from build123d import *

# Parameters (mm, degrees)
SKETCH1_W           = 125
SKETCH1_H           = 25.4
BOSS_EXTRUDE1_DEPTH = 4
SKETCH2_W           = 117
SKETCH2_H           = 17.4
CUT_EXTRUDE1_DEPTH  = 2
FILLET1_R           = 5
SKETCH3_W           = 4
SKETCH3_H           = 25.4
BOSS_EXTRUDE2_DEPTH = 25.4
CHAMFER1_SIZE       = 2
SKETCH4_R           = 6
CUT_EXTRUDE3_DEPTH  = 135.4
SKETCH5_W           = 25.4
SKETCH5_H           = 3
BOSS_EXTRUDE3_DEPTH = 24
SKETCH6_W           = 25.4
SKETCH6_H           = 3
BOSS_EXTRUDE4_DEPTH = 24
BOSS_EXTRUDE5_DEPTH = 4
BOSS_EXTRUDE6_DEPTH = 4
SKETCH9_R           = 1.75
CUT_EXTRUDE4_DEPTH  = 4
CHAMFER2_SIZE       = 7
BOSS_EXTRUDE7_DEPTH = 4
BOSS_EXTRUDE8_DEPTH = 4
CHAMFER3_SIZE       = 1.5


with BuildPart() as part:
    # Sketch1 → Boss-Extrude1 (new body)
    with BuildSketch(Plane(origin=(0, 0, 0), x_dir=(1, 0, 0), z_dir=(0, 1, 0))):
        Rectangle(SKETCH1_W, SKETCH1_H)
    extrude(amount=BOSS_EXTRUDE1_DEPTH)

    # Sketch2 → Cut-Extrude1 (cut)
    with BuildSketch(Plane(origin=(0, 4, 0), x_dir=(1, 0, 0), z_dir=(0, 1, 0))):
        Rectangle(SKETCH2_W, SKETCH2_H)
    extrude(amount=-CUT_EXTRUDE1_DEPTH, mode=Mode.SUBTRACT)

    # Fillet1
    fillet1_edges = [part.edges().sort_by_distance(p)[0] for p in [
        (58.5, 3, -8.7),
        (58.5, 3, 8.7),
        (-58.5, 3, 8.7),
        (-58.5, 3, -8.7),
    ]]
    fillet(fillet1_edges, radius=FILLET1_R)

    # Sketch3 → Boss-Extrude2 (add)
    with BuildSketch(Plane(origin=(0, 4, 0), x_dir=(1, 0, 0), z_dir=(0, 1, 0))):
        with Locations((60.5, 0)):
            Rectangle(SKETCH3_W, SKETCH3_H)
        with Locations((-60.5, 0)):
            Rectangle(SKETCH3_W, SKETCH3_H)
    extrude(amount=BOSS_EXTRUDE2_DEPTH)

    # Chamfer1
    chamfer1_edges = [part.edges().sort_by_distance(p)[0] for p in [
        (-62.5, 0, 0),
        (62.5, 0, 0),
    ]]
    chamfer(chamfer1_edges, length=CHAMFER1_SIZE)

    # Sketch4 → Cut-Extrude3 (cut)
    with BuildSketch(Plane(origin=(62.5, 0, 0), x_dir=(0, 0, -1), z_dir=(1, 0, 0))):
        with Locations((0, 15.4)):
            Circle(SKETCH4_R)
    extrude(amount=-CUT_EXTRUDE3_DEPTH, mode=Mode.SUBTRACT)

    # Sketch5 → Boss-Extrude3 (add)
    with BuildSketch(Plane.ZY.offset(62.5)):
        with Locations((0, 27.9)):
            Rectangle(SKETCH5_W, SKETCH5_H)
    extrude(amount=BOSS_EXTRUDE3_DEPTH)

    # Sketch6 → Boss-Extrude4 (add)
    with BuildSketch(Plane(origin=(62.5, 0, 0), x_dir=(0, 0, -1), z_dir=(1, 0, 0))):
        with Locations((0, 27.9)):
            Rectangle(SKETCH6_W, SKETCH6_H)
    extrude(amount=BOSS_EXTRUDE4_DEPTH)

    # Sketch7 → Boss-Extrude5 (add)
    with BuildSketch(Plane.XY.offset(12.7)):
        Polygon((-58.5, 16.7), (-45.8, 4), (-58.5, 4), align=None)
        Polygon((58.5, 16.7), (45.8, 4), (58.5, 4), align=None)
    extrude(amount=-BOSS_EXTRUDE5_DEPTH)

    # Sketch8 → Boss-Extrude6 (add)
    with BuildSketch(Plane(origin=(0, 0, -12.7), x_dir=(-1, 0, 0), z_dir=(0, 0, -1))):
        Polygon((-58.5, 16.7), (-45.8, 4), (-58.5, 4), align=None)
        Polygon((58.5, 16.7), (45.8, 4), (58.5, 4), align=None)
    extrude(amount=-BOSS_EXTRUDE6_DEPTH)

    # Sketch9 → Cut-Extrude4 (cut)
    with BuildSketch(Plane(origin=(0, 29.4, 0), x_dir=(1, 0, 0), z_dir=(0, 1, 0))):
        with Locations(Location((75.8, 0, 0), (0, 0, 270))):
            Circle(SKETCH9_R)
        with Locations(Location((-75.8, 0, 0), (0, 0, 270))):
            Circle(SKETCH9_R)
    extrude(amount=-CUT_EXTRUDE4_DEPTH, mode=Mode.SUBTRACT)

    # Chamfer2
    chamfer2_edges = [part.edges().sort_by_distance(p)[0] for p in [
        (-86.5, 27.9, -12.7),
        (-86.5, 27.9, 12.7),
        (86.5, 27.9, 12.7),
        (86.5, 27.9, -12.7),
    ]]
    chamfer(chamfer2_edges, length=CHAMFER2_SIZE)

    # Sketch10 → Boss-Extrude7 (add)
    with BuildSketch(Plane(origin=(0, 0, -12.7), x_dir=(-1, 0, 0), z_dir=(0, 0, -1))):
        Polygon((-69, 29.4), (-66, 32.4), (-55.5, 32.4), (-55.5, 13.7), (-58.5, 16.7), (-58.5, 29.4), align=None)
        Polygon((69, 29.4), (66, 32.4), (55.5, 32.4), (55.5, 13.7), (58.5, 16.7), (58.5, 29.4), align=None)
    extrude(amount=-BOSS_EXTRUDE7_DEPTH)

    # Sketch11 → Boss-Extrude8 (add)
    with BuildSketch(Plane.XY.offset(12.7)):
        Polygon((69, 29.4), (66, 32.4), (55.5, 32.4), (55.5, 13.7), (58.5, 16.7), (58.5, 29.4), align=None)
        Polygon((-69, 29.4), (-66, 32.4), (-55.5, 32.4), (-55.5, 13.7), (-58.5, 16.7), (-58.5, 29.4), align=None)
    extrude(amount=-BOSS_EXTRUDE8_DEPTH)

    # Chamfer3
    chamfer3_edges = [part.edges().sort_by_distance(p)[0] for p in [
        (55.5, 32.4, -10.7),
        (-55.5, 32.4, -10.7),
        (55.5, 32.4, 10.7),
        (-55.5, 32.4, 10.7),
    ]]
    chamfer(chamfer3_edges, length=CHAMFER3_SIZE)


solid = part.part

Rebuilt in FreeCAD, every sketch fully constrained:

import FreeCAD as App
import Part
import Sketcher
from FreeCAD import Vector
Q = App.Units.Quantity


def edges_at(feature, points):
    """Names of the edges that pass closest to the given points."""
    edges = feature.Shape.Edges
    near = lambda p: min(range(len(edges)), key=lambda i: edges[i].distToShape(Part.Vertex(*p))[0])
    return sorted({f"Edge{near(p) + 1}" for p in points})


def add_polygon(sketch, points):
    """Adds a closed chain of lines whose ends are joined by coincident constraints."""
    first, n = sketch.GeometryCount, len(points)
    for a, b in zip(points, points[1:] + points[:1]):
        sketch.addGeometry(Part.LineSegment(App.Vector(*a, 0), App.Vector(*b, 0)), False)
    for i in range(n):
        sketch.addConstraint(Sketcher.Constraint("Coincident", first + i, 2, first + (i + 1) % n, 1))

doc = App.newDocument("Part")
body = doc.addObject("PartDesign::Body", "Body")

# Sketch on XZ plane
sketch1 = body.newObject("Sketcher::SketchObject", "Sketch")
sketch1.AttachmentSupport = (doc.getObject("XZ_Plane"), [""])
sketch1.MapMode = "FlatFace"
add_polygon(sketch1, [(-62, -13), (-62, 13), (62, 13), (62, -13)])  # lines 0-3
sketch1.addConstraint([
    Sketcher.Constraint("Vertical", 0),
    Sketcher.Constraint("Horizontal", 1),
    Sketcher.Constraint("Vertical", 2),
    Sketcher.Constraint("Horizontal", 3),
    Sketcher.Constraint("Symmetric", 0, 2, 2, 2, -1, 1),
    Sketcher.Constraint("DistanceX", 1, 1, 1, 2, Q("125 mm")),
    Sketcher.Constraint("DistanceY", 0, 1, 0, 2, Q("25.4 mm")),
])
pad1 = body.newObject("PartDesign::Pad", "Pad")
pad1.Profile = sketch1
pad1.Length = 4
pad1.Reversed = True

# Sketch on XZ plane
sketch2 = body.newObject("Sketcher::SketchObject", "Sketch001")
sketch2.AttachmentSupport = (doc.getObject("XZ_Plane"), [""])
sketch2.MapMode = "FlatFace"
sketch2.AttachmentOffset = App.Placement(Vector(0, 0, -4), App.Rotation())
add_polygon(sketch2, [(-58, -9), (-58, 9), (58, 9), (58, -9)])  # lines 0-3
sketch2.addConstraint([
    Sketcher.Constraint("Vertical", 0),
    Sketcher.Constraint("Horizontal", 1),
    Sketcher.Constraint("Vertical", 2),
    Sketcher.Constraint("Horizontal", 3),
    Sketcher.Constraint("Symmetric", 0, 2, 2, 2, -1, 1),
    Sketcher.Constraint("DistanceX", 1, 1, 1, 2, Q("117 mm")),
    Sketcher.Constraint("DistanceY", 0, 1, 0, 2, Q("17.4 mm")),
])
pocket1 = body.newObject("PartDesign::Pocket", "Pocket")
pocket1.Profile = sketch2
pocket1.Length = 2
pocket1.Reversed = True
doc.recompute()

fillet = body.newObject("PartDesign::Fillet", "Fillet")
fillet.Base = (pocket1, edges_at(pocket1, [
    (58.5, 3, -8.7),
    (58.5, 3, 8.7),
    (-58.5, 3, 8.7),
    (-58.5, 3, -8.7),
]))
fillet.Radius = 5

# Sketch on XZ plane
sketch3 = body.newObject("Sketcher::SketchObject", "Sketch002")
sketch3.AttachmentSupport = (doc.getObject("XZ_Plane"), [""])
sketch3.MapMode = "FlatFace"
sketch3.AttachmentOffset = App.Placement(Vector(0, 0, -4), App.Rotation())
add_polygon(sketch3, [(58.5, -12.7), (58.5, 12.7), (62.5, 12.7), (62.5, -12.7)])  # lines 0-3
add_polygon(sketch3, [(-62.5, -12.7), (-62.5, 12.7), (-58.5, 12.7), (-58.5, -12.7)])  # lines 4-7
sketch3.addConstraint([
    Sketcher.Constraint("Vertical", 0),
    Sketcher.Constraint("Horizontal", 1),
    Sketcher.Constraint("Vertical", 2),
    Sketcher.Constraint("Horizontal", 3),
    Sketcher.Constraint("Vertical", 4),
    Sketcher.Constraint("Horizontal", 5),
    Sketcher.Constraint("Vertical", 6),
    Sketcher.Constraint("Horizontal", 7),
    Sketcher.Constraint("Symmetric", 2, 2, 4, 2, -1, 1),
    Sketcher.Constraint("Symmetric", 0, 2, 6, 2, -1, 1),
    Sketcher.Constraint("Horizontal", 1, 2, 4, 2),
    Sketcher.Constraint("DistanceX", 1, 1, 1, 2, Q("4 mm")),
    Sketcher.Constraint("DistanceY", 0, 1, 0, 2, Q("25.4 mm")),
    Sketcher.Constraint("DistanceX", 4, 2, 0, 2, Q("121 mm")),
])
pad2 = body.newObject("PartDesign::Pad", "Pad001")
pad2.Profile = sketch3
pad2.Length = 25.4
pad2.Reversed = True
doc.recompute()

chamfer = body.newObject("PartDesign::Chamfer", "Chamfer")
chamfer.Base = (pad2, edges_at(pad2, [(-62.5, 0, 0), (62.5, 0, 0)]))
chamfer.Size = 2

# Sketch on YZ plane
sketch4 = body.newObject("Sketcher::SketchObject", "Sketch003")
sketch4.AttachmentSupport = (doc.getObject("YZ_Plane"), [""])
sketch4.MapMode = "FlatFace"
sketch4.AttachmentOffset = App.Placement(Vector(0, 0, 62.5), App.Rotation())
sketch4.addGeometry(Part.Circle(Vector(15, 0, 0), Vector(0, 0, 1), 6), False)
sketch4.addConstraint([
    Sketcher.Constraint("PointOnObject", 0, 3, -1),
    Sketcher.Constraint("Diameter", 0, Q("12 mm")),
    Sketcher.Constraint("DistanceX", -1, 1, 0, 3, Q("15.4 mm")),
])
pocket2 = body.newObject("PartDesign::Pocket", "Pocket001")
pocket2.Profile = sketch4
pocket2.Length = 135.4

# Sketch on YZ plane
sketch5 = body.newObject("Sketcher::SketchObject", "Sketch004")
sketch5.AttachmentSupport = (doc.getObject("YZ_Plane"), [""])
sketch5.MapMode = "FlatFace"
sketch5.AttachmentOffset = App.Placement(Vector(0, 0, -62.5), App.Rotation())
add_polygon(sketch5, [(29.4, -12.7), (26.4, -12.7), (26.4, 12.7), (29.4, 12.7)])  # lines 0-3
sketch5.addConstraint([
    Sketcher.Constraint("Horizontal", 0),
    Sketcher.Constraint("Vertical", 1),
    Sketcher.Constraint("Horizontal", 2),
    Sketcher.Constraint("Vertical", 3),
    Sketcher.Constraint("DistanceX", 0, 2, 0, 1, Q("3 mm")),
    Sketcher.Constraint("DistanceY", 1, 1, 1, 2, Q("25.4 mm")),
    Sketcher.Constraint("DistanceX", -1, 1, 0, 2, Q("26.4 mm")),
    Sketcher.Constraint("DistanceY", 0, 2, -1, 1, Q("12.7 mm")),
])
pad3 = body.newObject("PartDesign::Pad", "Pad002")
pad3.Profile = sketch5
pad3.Length = 24
pad3.Reversed = True

# Sketch on YZ plane
sketch6 = body.newObject("Sketcher::SketchObject", "Sketch005")
sketch6.AttachmentSupport = (doc.getObject("YZ_Plane"), [""])
sketch6.MapMode = "FlatFace"
sketch6.AttachmentOffset = App.Placement(Vector(0, 0, 62.5), App.Rotation())
add_polygon(sketch6, [(29.4, 12.7), (26.4, 12.7), (26.4, -12.7), (29.4, -12.7)])  # lines 0-3
sketch6.addConstraint([
    Sketcher.Constraint("Horizontal", 0),
    Sketcher.Constraint("Vertical", 1),
    Sketcher.Constraint("Horizontal", 2),
    Sketcher.Constraint("Vertical", 3),
    Sketcher.Constraint("DistanceX", 0, 2, 0, 1, Q("3 mm")),
    Sketcher.Constraint("DistanceY", 1, 2, 1, 1, Q("25.4 mm")),
    Sketcher.Constraint("DistanceX", -1, 1, 0, 2, Q("26.4 mm")),
    Sketcher.Constraint("DistanceY", -1, 1, 0, 2, Q("12.7 mm")),
])
pad4 = body.newObject("PartDesign::Pad", "Pad003")
pad4.Profile = sketch6
pad4.Length = 24

# Sketch on XY plane
sketch7 = body.newObject("Sketcher::SketchObject", "Sketch006")
sketch7.AttachmentSupport = (doc.getObject("XY_Plane"), [""])
sketch7.MapMode = "FlatFace"
sketch7.AttachmentOffset = App.Placement(Vector(0, 0, 12.7), App.Rotation())
add_polygon(sketch7, [(-46, 4), (-58, 17), (-58, 4)])  # lines 0-2
add_polygon(sketch7, [(58, 17), (46, 4), (58, 4)])  # lines 3-5
sketch7.addConstraint([
    Sketcher.Constraint("Vertical", 1),
    Sketcher.Constraint("Horizontal", 2),
    Sketcher.Constraint("Horizontal", 4),
    Sketcher.Constraint("Vertical", 5),
    Sketcher.Constraint("Symmetric", 2, 2, 3, 2, -2),
    Sketcher.Constraint("Symmetric", 0, 2, 5, 2, -2),
    Sketcher.Constraint("Perpendicular", 0, 3),
    Sketcher.Constraint("DistanceX", 2, 1, 2, 2, Q("12.7 mm")),
    Sketcher.Constraint("DistanceY", -1, 1, 1, 2, Q("4 mm")),
    Sketcher.Constraint("DistanceX", 1, 2, 4, 2, Q("117 mm")),
])
pad5 = body.newObject("PartDesign::Pad", "Pad004")
pad5.Profile = sketch7
pad5.Length = 4
pad5.Reversed = True

# Sketch on XY plane
sketch8 = body.newObject("Sketcher::SketchObject", "Sketch007")
sketch8.AttachmentSupport = (doc.getObject("XY_Plane"), [""])
sketch8.MapMode = "FlatFace"
sketch8.AttachmentOffset = App.Placement(Vector(0, 0, -12.7), App.Rotation())
add_polygon(sketch8, [(46, 4), (58, 17), (58, 4)])  # lines 0-2
add_polygon(sketch8, [(-58, 17), (-46, 4), (-58, 4)])  # lines 3-5
sketch8.addConstraint([
    Sketcher.Constraint("Vertical", 1),
    Sketcher.Constraint("Horizontal", 2),
    Sketcher.Constraint("Horizontal", 4),
    Sketcher.Constraint("Vertical", 5),
    Sketcher.Constraint("Symmetric", 2, 2, 3, 2, -2),
    Sketcher.Constraint("Symmetric", 0, 2, 5, 2, -2),
    Sketcher.Constraint("Perpendicular", 0, 3),
    Sketcher.Constraint("DistanceX", 2, 2, 2, 1, Q("12.7 mm")),
    Sketcher.Constraint("DistanceY", -1, 1, 1, 2, Q("4 mm")),
    Sketcher.Constraint("DistanceX", 4, 2, 1, 2, Q("117 mm")),
])
pad6 = body.newObject("PartDesign::Pad", "Pad005")
pad6.Profile = sketch8
pad6.Length = 4

# Sketch on XZ plane
sketch9 = body.newObject("Sketcher::SketchObject", "Sketch008")
sketch9.AttachmentSupport = (doc.getObject("XZ_Plane"), [""])
sketch9.MapMode = "FlatFace"
sketch9.AttachmentOffset = App.Placement(Vector(0, 0, -29.4), App.Rotation())
sketch9.addGeometry([
    Part.Circle(Vector(75.8, 0, 0), Vector(0, 0, 1), 1.8),
    Part.Circle(Vector(-75.8, 0, 0), Vector(0, 0, 1), 1.8),
], False)
sketch9.addConstraint([
    Sketcher.Constraint("Equal", 0, 1),
    Sketcher.Constraint("Symmetric", 0, 3, 1, 3, -1, 1),
    Sketcher.Constraint("PointOnObject", 0, 3, -1),
    Sketcher.Constraint("Diameter", 0, Q("3.5 mm")),
    Sketcher.Constraint("DistanceX", -1, 1, 0, 3, Q("75.8 mm")),
])
pocket3 = body.newObject("PartDesign::Pocket", "Pocket002")
pocket3.Profile = sketch9
pocket3.Length = 4
pocket3.Reversed = True
doc.recompute()

chamfer2 = body.newObject("PartDesign::Chamfer", "Chamfer001")
chamfer2.Base = (pocket3, edges_at(pocket3, [
    (-86.5, 27.9, -12.7),
    (-86.5, 27.9, 12.7),
    (86.5, 27.9, 12.7),
    (86.5, 27.9, -12.7),
]))
chamfer2.Size = 7

# Sketch on XY plane
sketch10 = body.newObject("Sketcher::SketchObject", "Sketch009")
sketch10.AttachmentSupport = (doc.getObject("XY_Plane"), [""])
sketch10.MapMode = "FlatFace"
sketch10.AttachmentOffset = App.Placement(Vector(0, 0, -12.7), App.Rotation())
add_polygon(sketch10, [(66, 32.4), (69, 29.4), (58.5, 29.4), (58.5, 16.7), (55.5, 13.7), (55.5, 32.4)])  # lines 0-5
add_polygon(sketch10, [(-69, 29.4), (-66, 32.4), (-55.5, 32.4), (-55.5, 13.7), (-58.5, 16.7), (-58.5, 29.4)])  # lines 6-11
sketch10.addConstraint([
    Sketcher.Constraint("Horizontal", 1),
    Sketcher.Constraint("Vertical", 2),
    Sketcher.Constraint("Vertical", 4),
    Sketcher.Constraint("Horizontal", 5),
    Sketcher.Constraint("Horizontal", 7),
    Sketcher.Constraint("Vertical", 8),
    Sketcher.Constraint("Vertical", 10),
    Sketcher.Constraint("Horizontal", 11),
    Sketcher.Constraint("Symmetric", 5, 2, 6, 2, -2),
    Sketcher.Constraint("Symmetric", 3, 2, 8, 2, -2),
    Sketcher.Constraint("Symmetric", 2, 2, 9, 2, -2),
    Sketcher.Constraint("Symmetric", 0, 2, 11, 2, -2),
    Sketcher.Constraint("Perpendicular", 0, 3),
    Sketcher.Constraint("Parallel", 3, 6),
    Sketcher.Constraint("Equal", 1, 5),
    Sketcher.Constraint("DistanceX", 1, 2, 1, 1, Q("10.5 mm")),
    Sketcher.Constraint("DistanceY", 2, 2, 2, 1, Q("12.7 mm")),
    Sketcher.Constraint("DistanceY", 4, 1, 4, 2, Q("18.7 mm")),
    Sketcher.Constraint("DistanceX", -1, 1, 0, 2, Q("69 mm")),
    Sketcher.Constraint("DistanceY", -1, 1, 0, 2, Q("29.4 mm")),
])
pad7 = body.newObject("PartDesign::Pad", "Pad006")
pad7.Profile = sketch10
pad7.Length = 4

# Sketch on XY plane
sketch11 = body.newObject("Sketcher::SketchObject", "Sketch010")
sketch11.AttachmentSupport = (doc.getObject("XY_Plane"), [""])
sketch11.MapMode = "FlatFace"
sketch11.AttachmentOffset = App.Placement(Vector(0, 0, 12.7), App.Rotation())
add_polygon(sketch11, [(69, 29.4), (66, 32.4), (55.5, 32.4), (55.5, 13.7), (58.5, 16.7), (58.5, 29.4)])  # lines 0-5
add_polygon(sketch11, [(-66, 32.4), (-69, 29.4), (-58.5, 29.4), (-58.5, 16.7), (-55.5, 13.7), (-55.5, 32.4)])  # lines 6-11
sketch11.addConstraint([
    Sketcher.Constraint("Horizontal", 1),
    Sketcher.Constraint("Vertical", 2),
    Sketcher.Constraint("Vertical", 4),
    Sketcher.Constraint("Horizontal", 5),
    Sketcher.Constraint("Horizontal", 7),
    Sketcher.Constraint("Vertical", 8),
    Sketcher.Constraint("Vertical", 10),
    Sketcher.Constraint("Horizontal", 11),
    Sketcher.Constraint("Symmetric", 5, 2, 6, 2, -2),
    Sketcher.Constraint("Symmetric", 3, 2, 8, 2, -2),
    Sketcher.Constraint("Symmetric", 2, 2, 9, 2, -2),
    Sketcher.Constraint("Symmetric", 0, 2, 11, 2, -2),
    Sketcher.Constraint("Perpendicular", 0, 3),
    Sketcher.Constraint("Parallel", 3, 6),
    Sketcher.Constraint("Equal", 1, 5),
    Sketcher.Constraint("DistanceX", 1, 2, 1, 1, Q("10.5 mm")),
    Sketcher.Constraint("DistanceY", 2, 2, 2, 1, Q("18.7 mm")),
    Sketcher.Constraint("DistanceY", 4, 1, 4, 2, Q("12.7 mm")),
    Sketcher.Constraint("DistanceX", -1, 1, 0, 2, Q("66 mm")),
    Sketcher.Constraint("DistanceY", -1, 1, 0, 2, Q("32.4 mm")),
])
pad8 = body.newObject("PartDesign::Pad", "Pad007")
pad8.Profile = sketch11
pad8.Length = 4
pad8.Reversed = True
doc.recompute()

chamfer3 = body.newObject("PartDesign::Chamfer", "Chamfer002")
chamfer3.Base = (pad8, edges_at(pad8, [
    (55.5, 32.4, -10.7),
    (-55.5, 32.4, -10.7),
    (55.5, 32.4, 10.7),
    (-55.5, 32.4, 10.7),
]))
chamfer3.Size = 1.5

doc.recompute()
